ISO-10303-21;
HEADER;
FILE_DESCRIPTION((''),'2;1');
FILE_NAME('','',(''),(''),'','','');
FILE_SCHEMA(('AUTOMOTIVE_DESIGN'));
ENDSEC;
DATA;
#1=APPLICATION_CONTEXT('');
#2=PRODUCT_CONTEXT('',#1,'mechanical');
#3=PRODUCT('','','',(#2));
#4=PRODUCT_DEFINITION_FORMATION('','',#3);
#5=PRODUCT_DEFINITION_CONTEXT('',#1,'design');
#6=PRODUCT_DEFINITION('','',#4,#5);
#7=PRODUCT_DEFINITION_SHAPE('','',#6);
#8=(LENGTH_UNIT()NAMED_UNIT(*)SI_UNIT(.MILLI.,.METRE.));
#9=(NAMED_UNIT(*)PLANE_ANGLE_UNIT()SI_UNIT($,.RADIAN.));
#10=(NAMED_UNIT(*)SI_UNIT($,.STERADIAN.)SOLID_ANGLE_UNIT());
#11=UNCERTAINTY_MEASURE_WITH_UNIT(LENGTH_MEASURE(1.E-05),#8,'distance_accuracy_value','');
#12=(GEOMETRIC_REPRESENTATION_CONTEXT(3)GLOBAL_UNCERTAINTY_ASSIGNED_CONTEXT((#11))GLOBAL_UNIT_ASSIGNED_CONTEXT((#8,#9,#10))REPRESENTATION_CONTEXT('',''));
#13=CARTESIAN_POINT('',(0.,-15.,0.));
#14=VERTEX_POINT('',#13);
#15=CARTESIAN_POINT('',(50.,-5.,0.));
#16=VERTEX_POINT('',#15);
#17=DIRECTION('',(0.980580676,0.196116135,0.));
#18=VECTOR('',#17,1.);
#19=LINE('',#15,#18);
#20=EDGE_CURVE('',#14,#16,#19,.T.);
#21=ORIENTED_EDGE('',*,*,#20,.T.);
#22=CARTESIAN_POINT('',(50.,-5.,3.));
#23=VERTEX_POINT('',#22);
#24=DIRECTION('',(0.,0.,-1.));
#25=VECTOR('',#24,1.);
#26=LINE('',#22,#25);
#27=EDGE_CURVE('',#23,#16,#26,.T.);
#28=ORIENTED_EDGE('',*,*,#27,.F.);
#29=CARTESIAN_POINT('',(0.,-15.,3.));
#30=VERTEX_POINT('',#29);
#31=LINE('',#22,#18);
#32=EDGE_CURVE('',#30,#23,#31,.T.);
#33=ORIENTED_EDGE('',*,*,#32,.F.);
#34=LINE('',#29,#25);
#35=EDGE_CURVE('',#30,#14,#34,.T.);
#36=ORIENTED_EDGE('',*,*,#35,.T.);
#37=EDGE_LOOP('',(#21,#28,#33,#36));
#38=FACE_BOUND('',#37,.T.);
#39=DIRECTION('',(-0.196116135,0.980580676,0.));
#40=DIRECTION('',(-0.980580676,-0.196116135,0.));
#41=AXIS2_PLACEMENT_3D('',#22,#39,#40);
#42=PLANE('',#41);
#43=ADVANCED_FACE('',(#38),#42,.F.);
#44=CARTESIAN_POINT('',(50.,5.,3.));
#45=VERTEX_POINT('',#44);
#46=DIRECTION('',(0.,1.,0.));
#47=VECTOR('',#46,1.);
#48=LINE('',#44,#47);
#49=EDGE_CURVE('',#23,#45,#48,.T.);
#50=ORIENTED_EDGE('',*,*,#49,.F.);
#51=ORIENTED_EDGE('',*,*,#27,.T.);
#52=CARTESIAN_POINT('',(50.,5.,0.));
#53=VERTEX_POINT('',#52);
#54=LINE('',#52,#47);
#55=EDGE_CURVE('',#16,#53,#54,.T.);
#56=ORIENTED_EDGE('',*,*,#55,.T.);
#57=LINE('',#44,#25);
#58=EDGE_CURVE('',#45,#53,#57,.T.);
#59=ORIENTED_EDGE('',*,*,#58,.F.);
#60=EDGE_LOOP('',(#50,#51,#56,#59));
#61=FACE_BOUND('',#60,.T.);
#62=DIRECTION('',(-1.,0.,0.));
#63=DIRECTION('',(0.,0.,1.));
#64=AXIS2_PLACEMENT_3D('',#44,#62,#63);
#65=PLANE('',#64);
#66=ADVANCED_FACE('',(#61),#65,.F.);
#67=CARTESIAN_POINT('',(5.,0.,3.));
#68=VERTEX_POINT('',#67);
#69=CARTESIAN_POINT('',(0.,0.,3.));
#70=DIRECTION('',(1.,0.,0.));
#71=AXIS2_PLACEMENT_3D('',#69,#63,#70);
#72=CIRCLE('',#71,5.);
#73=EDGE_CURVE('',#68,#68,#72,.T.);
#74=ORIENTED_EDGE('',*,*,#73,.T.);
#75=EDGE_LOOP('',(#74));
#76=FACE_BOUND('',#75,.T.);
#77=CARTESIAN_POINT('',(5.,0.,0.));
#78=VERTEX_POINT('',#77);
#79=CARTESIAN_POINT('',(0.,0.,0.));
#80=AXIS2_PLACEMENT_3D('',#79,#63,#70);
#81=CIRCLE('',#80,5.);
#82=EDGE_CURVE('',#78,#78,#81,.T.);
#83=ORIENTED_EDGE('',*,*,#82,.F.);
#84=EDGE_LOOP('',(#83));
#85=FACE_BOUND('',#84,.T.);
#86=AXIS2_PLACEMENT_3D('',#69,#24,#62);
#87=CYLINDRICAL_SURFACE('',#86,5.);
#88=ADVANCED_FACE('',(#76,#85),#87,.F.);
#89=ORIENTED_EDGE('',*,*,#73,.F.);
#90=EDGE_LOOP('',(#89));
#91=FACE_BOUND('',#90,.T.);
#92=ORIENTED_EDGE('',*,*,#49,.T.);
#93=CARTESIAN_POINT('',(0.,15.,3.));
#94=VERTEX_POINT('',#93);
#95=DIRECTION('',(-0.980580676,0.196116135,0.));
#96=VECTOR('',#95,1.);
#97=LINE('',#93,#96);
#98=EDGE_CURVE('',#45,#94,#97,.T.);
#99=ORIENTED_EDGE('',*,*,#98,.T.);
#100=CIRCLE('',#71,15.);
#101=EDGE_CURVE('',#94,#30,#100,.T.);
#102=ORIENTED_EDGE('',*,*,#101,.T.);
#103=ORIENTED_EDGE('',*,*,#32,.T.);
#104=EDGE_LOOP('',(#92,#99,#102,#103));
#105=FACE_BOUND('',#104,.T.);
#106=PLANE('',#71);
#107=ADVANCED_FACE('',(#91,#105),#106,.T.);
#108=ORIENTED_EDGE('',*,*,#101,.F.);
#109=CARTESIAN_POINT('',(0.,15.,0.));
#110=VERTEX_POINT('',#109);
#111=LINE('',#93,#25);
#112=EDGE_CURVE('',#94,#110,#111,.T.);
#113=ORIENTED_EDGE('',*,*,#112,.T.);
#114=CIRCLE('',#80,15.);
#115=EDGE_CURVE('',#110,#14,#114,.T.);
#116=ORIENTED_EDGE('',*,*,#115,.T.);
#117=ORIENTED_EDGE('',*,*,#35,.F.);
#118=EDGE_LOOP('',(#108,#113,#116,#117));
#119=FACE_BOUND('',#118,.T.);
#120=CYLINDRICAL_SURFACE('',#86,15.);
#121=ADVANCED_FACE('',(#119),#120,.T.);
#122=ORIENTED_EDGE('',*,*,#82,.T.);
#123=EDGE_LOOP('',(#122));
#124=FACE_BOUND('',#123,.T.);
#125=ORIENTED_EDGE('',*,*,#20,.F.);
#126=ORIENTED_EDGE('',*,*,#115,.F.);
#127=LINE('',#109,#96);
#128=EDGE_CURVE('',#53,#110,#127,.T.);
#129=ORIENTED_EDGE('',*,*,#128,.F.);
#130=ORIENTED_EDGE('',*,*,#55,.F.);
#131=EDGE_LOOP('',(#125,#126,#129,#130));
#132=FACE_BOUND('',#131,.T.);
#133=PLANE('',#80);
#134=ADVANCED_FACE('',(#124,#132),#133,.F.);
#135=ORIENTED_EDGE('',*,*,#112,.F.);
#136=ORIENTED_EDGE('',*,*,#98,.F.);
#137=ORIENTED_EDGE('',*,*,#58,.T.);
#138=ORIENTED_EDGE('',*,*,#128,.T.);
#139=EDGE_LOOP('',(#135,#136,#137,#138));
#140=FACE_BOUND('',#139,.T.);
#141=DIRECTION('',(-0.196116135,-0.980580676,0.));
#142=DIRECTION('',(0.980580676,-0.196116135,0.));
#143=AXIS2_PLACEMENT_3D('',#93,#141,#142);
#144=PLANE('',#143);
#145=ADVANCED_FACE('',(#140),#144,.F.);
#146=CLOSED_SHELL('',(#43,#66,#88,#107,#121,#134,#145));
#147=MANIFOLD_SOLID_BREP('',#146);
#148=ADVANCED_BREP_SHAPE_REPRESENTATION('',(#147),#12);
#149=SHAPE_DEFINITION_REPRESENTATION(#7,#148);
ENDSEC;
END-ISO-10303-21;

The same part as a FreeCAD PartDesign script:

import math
import FreeCAD as App
import Part
import Sketcher
from FreeCAD import Vector
Q = App.Units.Quantity

doc = App.newDocument("Part")
params = doc.addObject("Spreadsheet::Sheet", "Params")
for row, (alias, value) in enumerate([
    ("sketch1_diameter", "10 mm"),
    ("sketch1_radius", "15 mm"),
    ("sketch1_height", "10 mm"),
    ("pad1_length", "3 mm"),
], start=1):
    params.set(f"A{row}", alias)
    params.set(f"B{row}", "=" + value)
    params.setAlias(f"B{row}", alias)

body = doc.addObject("PartDesign::Body", "Body")

# Sketch on XY plane
sketch1 = doc.addObject("Sketcher::SketchObject", "Sketch")
body.addObject(sketch1)
sketch1.AttachmentSupport = (doc.XY_Plane, [""])
sketch1.MapMode = "FlatFace"
sketch1.addGeometry(Part.LineSegment(Vector(50, 5, 0), Vector(0, 15, 0)), False)
sketch1.addGeometry(Part.ArcOfCircle(Part.Circle(Vector(0, 0, 0), Vector(0, 0, 1), 15), math.radians(90), math.radians(270)), False)
sketch1.addGeometry(Part.LineSegment(Vector(0, -15, 0), Vector(50, -5, 0)), False)
sketch1.addGeometry(Part.LineSegment(Vector(50, -5, 0), Vector(50, 5, 0)), False)
sketch1.addGeometry(Part.Circle(Vector(0, 0, 0), Vector(0, 0, 1), 5), False)
sketch1.addConstraint(Sketcher.Constraint("Coincident", 0, 2, 1, 1))
sketch1.addConstraint(Sketcher.Constraint("Coincident", 1, 2, 2, 1))
sketch1.addConstraint(Sketcher.Constraint("Coincident", 2, 2, 3, 1))
sketch1.addConstraint(Sketcher.Constraint("Coincident", 3, 2, 0, 1))
sketch1.addConstraint(Sketcher.Constraint("Vertical", 3))
sketch1.addConstraint(Sketcher.Constraint("Coincident", 1, 3, -1, 1))
sketch1.addConstraint(Sketcher.Constraint("Coincident", 4, 3, -1, 1))
sketch1.addConstraint(Sketcher.Constraint("PointOnObject", 0, 2, -2))
sketch1.addConstraint(Sketcher.Constraint("PointOnObject", 1, 2, -2))
sketch1.addConstraint(Sketcher.Constraint("Equal", 0, 2))
sketch1.addConstraint(Sketcher.Constraint("Diameter", 4, Q("10 mm")))
sketch1.addConstraint(Sketcher.Constraint("Radius", 1, Q("15 mm")))
sketch1.addConstraint(Sketcher.Constraint("DistanceY", 3, 1, 3, 2, Q("10 mm")))
sketch1.addConstraint(Sketcher.Constraint("DistanceX", -1, 1, 2, 2, Q("50 mm")))
sketch1.setExpression("Constraints[10]", "Params.sketch1_diameter")
sketch1.setExpression("Constraints[11]", "Params.sketch1_radius")
sketch1.setExpression("Constraints[12]", "Params.sketch1_height")
pad1 = doc.addObject("PartDesign::Pad", "Pad")
body.addObject(pad1)
pad1.Profile = sketch1
pad1.setExpression("Length", "Params.pad1_length")

doc.recompute()
